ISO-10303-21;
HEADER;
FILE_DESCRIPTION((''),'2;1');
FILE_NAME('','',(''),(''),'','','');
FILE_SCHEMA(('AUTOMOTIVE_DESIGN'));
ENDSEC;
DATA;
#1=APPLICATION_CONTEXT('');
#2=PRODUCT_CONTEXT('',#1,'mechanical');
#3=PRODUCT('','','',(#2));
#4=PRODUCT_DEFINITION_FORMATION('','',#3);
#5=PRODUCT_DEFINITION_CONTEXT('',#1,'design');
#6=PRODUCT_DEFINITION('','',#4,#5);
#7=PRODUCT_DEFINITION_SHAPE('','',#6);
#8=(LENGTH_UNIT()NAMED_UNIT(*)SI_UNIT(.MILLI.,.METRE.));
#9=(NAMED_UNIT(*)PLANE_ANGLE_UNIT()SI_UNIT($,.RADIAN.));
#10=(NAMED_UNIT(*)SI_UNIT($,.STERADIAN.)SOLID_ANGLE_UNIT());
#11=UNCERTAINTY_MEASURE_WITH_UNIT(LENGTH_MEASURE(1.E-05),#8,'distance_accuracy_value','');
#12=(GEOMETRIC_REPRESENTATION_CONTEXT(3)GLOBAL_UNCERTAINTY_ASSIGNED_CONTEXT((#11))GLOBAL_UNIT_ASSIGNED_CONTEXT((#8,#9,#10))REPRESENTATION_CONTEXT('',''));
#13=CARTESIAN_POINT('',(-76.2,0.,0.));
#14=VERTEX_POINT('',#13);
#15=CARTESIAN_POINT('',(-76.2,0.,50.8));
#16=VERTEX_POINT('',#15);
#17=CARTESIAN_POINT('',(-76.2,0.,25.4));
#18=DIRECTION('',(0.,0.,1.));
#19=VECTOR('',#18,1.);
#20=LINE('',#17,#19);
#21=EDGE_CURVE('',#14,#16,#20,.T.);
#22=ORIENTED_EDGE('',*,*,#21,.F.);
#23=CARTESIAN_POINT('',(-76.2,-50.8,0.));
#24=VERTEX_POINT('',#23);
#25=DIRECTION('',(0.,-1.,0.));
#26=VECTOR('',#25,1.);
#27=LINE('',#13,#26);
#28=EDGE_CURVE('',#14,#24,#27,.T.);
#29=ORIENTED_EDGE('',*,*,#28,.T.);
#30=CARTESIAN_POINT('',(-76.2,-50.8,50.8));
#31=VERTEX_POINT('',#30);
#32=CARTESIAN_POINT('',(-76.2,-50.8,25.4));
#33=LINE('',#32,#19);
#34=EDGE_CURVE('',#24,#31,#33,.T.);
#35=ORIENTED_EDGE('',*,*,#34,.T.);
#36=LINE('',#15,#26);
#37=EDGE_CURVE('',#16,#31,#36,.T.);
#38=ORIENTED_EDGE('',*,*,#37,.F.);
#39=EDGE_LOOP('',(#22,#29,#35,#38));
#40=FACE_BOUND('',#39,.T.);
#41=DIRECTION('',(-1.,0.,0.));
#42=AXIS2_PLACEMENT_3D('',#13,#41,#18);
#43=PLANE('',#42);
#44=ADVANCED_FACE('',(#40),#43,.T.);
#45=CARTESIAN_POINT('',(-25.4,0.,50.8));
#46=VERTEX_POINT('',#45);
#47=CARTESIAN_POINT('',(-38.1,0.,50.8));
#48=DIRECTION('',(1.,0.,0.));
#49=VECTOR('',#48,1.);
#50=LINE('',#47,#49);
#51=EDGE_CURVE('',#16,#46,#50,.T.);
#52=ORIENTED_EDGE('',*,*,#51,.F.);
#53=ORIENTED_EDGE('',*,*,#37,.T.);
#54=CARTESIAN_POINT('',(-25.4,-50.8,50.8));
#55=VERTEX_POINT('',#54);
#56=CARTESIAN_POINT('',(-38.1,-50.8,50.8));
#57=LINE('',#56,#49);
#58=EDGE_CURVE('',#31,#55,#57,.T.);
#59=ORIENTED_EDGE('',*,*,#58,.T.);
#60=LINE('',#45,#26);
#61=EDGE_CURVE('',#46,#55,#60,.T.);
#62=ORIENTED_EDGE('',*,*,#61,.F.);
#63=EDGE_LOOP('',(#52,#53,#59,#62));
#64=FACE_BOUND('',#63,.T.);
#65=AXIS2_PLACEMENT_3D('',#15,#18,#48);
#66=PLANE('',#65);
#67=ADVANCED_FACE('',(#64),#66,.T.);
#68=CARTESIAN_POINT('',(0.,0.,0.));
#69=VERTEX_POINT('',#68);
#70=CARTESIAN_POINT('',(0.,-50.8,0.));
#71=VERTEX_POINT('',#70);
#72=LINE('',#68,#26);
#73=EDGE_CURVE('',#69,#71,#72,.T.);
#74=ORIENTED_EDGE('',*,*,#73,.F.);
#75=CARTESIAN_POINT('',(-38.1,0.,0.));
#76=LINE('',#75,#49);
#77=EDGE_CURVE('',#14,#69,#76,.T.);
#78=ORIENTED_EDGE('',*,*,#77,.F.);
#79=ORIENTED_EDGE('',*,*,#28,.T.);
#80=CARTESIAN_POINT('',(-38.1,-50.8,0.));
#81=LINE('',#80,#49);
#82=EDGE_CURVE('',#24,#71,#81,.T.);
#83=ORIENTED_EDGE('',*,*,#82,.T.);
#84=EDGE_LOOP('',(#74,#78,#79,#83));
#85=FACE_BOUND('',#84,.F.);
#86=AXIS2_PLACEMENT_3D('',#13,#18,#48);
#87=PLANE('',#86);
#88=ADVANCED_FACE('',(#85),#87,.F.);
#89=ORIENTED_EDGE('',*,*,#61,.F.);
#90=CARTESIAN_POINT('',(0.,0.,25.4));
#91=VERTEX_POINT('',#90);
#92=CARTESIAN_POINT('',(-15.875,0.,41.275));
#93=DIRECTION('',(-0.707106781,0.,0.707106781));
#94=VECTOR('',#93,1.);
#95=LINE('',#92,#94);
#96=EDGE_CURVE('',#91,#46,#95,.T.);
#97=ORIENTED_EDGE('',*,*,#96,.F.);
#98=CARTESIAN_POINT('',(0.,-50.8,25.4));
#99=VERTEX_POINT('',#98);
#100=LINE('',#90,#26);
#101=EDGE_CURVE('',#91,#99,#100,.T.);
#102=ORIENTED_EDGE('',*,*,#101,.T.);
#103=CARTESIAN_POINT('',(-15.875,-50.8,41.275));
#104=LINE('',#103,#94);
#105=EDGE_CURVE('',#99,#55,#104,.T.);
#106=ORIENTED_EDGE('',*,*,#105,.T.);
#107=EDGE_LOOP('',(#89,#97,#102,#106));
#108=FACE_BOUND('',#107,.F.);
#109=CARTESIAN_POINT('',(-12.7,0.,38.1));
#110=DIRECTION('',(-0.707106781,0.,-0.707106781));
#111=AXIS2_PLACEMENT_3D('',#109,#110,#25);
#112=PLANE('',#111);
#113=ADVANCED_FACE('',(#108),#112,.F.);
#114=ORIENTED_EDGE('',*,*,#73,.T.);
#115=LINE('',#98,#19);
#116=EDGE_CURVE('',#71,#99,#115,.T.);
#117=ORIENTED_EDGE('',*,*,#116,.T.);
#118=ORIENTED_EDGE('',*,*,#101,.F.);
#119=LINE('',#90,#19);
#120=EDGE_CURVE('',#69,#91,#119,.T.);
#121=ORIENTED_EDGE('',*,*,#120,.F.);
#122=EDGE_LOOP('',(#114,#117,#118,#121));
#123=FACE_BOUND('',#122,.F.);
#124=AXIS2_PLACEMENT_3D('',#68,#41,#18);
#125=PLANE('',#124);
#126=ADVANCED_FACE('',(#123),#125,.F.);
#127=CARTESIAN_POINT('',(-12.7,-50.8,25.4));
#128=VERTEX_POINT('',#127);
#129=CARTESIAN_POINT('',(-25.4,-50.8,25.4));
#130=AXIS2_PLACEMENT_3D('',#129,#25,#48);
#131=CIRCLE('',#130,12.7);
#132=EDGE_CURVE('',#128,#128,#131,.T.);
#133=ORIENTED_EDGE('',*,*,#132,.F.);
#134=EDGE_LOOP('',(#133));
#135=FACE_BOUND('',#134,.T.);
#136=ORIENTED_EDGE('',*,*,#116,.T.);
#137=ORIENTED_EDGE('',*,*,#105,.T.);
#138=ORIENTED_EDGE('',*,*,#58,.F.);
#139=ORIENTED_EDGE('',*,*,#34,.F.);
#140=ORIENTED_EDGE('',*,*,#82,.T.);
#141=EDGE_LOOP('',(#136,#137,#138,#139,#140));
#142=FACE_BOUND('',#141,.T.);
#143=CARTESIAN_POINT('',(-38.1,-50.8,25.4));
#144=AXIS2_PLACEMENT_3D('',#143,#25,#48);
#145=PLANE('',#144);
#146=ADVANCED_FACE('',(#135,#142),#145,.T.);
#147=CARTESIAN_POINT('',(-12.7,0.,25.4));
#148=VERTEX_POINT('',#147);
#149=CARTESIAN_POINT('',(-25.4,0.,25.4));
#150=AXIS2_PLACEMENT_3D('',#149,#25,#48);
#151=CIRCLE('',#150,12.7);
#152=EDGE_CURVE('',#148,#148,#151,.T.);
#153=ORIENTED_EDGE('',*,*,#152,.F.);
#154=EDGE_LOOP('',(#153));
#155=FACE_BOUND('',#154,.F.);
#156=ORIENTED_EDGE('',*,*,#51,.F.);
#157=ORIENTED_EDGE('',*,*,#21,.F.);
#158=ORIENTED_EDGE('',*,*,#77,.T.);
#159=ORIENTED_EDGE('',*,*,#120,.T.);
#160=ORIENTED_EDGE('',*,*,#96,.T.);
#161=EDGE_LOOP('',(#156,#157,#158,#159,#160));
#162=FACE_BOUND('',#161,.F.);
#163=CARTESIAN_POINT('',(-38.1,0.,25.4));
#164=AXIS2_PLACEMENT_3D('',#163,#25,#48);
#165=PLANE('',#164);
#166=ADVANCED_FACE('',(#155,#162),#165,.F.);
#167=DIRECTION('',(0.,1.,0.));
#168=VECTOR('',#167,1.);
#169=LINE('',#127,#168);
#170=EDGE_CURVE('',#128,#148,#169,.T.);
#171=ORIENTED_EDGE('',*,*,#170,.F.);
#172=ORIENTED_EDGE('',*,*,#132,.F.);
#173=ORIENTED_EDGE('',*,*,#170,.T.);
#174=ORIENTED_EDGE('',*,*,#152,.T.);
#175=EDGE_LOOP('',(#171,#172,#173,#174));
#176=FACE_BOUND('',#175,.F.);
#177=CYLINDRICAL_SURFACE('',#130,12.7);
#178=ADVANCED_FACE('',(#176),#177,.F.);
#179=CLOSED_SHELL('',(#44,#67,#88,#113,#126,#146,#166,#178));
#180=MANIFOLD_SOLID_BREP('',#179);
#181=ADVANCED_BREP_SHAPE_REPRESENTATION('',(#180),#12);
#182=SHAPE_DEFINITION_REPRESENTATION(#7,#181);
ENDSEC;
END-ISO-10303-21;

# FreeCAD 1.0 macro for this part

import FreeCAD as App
import Part
import Sketcher

V = App.Vector
Q = App.Units.Quantity


def edges_at(feature, points):
    """Names of the edges that pass closest to the given points."""
    edges = feature.Shape.Edges
    near = lambda p: min(range(len(edges)), key=lambda i: edges[i].distToShape(Part.Vertex(*p))[0])
    return sorted({f"Edge{near(p) + 1}" for p in points})

doc = App.newDocument("Part")
body = doc.addObject("PartDesign::Body", "Body")

sketch1 = body.newObject("Sketcher::SketchObject", "Sketch")
sketch1.AttachmentSupport = (doc.getObject("XZ_Plane"), [""])
sketch1.MapMode = "FlatFace"
sketch1.addGeometry(Part.LineSegment(V(-76, 51, 0), V(-76, 0, 0)), False)
sketch1.addGeometry(Part.LineSegment(V(-76, 0, 0), V(0, 0, 0)), False)
sketch1.addGeometry(Part.LineSegment(V(0, 0, 0), V(0, 51, 0)), False)
sketch1.addGeometry(Part.LineSegment(V(0, 51, 0), V(-76, 51, 0)), False)
sketch1.addConstraint(Sketcher.Constraint("Coincident", 0, 2, 1, 1))
sketch1.addConstraint(Sketcher.Constraint("Coincident", 1, 2, 2, 1))
sketch1.addConstraint(Sketcher.Constraint("Coincident", 2, 2, 3, 1))
sketch1.addConstraint(Sketcher.Constraint("Coincident", 3, 2, 0, 1))
sketch1.addConstraint(Sketcher.Constraint("Vertical", 0))
sketch1.addConstraint(Sketcher.Constraint("Horizontal", 1))
sketch1.addConstraint(Sketcher.Constraint("Vertical", 2))
sketch1.addConstraint(Sketcher.Constraint("Horizontal", 3))
sketch1.addConstraint(Sketcher.Constraint("Coincident", 1, 2, -1, 1))
sketch1.addConstraint(Sketcher.Constraint("DistanceX", 1, 1, 1, 2, Q("3 in")))
sketch1.addConstraint(Sketcher.Constraint("DistanceY", 0, 2, 0, 1, Q("2 in")))
pad1 = body.newObject("PartDesign::Pad", "Pad")
pad1.Profile = sketch1
pad1.Length = Q("2 in")
doc.recompute()

chamfer = body.newObject("PartDesign::Chamfer", "Chamfer")
chamfer.Base = (pad1, edges_at(pad1, [(0, -25.4, 50.8)]))
chamfer.Size = Q("1 in")

sketch2 = body.newObject("Sketcher::SketchObject", "Sketch001")
sketch2.AttachmentSupport = (doc.getObject("XZ_Plane"), [""])
sketch2.MapMode = "FlatFace"
sketch2.AttachmentOffset = App.Placement(V(0, 0, 2 * 25.4), App.Rotation())
sketch2.addGeometry(Part.Circle(V(-25, 25, 0), V(0, 0, 1), 13), False)
sketch2.addConstraint(Sketcher.Constraint("Diameter", 0, Q("1 in")))
sketch2.addConstraint(Sketcher.Constraint("DistanceX", 0, 3, -1, 1, Q("1 in")))
sketch2.addConstraint(Sketcher.Constraint("DistanceY", -1, 1, 0, 3, Q("1 in")))
pocket1 = body.newObject("PartDesign::Pocket", "Pocket")
pocket1.Profile = sketch2
pocket1.Length = Q("2 in")

doc.recompute()
